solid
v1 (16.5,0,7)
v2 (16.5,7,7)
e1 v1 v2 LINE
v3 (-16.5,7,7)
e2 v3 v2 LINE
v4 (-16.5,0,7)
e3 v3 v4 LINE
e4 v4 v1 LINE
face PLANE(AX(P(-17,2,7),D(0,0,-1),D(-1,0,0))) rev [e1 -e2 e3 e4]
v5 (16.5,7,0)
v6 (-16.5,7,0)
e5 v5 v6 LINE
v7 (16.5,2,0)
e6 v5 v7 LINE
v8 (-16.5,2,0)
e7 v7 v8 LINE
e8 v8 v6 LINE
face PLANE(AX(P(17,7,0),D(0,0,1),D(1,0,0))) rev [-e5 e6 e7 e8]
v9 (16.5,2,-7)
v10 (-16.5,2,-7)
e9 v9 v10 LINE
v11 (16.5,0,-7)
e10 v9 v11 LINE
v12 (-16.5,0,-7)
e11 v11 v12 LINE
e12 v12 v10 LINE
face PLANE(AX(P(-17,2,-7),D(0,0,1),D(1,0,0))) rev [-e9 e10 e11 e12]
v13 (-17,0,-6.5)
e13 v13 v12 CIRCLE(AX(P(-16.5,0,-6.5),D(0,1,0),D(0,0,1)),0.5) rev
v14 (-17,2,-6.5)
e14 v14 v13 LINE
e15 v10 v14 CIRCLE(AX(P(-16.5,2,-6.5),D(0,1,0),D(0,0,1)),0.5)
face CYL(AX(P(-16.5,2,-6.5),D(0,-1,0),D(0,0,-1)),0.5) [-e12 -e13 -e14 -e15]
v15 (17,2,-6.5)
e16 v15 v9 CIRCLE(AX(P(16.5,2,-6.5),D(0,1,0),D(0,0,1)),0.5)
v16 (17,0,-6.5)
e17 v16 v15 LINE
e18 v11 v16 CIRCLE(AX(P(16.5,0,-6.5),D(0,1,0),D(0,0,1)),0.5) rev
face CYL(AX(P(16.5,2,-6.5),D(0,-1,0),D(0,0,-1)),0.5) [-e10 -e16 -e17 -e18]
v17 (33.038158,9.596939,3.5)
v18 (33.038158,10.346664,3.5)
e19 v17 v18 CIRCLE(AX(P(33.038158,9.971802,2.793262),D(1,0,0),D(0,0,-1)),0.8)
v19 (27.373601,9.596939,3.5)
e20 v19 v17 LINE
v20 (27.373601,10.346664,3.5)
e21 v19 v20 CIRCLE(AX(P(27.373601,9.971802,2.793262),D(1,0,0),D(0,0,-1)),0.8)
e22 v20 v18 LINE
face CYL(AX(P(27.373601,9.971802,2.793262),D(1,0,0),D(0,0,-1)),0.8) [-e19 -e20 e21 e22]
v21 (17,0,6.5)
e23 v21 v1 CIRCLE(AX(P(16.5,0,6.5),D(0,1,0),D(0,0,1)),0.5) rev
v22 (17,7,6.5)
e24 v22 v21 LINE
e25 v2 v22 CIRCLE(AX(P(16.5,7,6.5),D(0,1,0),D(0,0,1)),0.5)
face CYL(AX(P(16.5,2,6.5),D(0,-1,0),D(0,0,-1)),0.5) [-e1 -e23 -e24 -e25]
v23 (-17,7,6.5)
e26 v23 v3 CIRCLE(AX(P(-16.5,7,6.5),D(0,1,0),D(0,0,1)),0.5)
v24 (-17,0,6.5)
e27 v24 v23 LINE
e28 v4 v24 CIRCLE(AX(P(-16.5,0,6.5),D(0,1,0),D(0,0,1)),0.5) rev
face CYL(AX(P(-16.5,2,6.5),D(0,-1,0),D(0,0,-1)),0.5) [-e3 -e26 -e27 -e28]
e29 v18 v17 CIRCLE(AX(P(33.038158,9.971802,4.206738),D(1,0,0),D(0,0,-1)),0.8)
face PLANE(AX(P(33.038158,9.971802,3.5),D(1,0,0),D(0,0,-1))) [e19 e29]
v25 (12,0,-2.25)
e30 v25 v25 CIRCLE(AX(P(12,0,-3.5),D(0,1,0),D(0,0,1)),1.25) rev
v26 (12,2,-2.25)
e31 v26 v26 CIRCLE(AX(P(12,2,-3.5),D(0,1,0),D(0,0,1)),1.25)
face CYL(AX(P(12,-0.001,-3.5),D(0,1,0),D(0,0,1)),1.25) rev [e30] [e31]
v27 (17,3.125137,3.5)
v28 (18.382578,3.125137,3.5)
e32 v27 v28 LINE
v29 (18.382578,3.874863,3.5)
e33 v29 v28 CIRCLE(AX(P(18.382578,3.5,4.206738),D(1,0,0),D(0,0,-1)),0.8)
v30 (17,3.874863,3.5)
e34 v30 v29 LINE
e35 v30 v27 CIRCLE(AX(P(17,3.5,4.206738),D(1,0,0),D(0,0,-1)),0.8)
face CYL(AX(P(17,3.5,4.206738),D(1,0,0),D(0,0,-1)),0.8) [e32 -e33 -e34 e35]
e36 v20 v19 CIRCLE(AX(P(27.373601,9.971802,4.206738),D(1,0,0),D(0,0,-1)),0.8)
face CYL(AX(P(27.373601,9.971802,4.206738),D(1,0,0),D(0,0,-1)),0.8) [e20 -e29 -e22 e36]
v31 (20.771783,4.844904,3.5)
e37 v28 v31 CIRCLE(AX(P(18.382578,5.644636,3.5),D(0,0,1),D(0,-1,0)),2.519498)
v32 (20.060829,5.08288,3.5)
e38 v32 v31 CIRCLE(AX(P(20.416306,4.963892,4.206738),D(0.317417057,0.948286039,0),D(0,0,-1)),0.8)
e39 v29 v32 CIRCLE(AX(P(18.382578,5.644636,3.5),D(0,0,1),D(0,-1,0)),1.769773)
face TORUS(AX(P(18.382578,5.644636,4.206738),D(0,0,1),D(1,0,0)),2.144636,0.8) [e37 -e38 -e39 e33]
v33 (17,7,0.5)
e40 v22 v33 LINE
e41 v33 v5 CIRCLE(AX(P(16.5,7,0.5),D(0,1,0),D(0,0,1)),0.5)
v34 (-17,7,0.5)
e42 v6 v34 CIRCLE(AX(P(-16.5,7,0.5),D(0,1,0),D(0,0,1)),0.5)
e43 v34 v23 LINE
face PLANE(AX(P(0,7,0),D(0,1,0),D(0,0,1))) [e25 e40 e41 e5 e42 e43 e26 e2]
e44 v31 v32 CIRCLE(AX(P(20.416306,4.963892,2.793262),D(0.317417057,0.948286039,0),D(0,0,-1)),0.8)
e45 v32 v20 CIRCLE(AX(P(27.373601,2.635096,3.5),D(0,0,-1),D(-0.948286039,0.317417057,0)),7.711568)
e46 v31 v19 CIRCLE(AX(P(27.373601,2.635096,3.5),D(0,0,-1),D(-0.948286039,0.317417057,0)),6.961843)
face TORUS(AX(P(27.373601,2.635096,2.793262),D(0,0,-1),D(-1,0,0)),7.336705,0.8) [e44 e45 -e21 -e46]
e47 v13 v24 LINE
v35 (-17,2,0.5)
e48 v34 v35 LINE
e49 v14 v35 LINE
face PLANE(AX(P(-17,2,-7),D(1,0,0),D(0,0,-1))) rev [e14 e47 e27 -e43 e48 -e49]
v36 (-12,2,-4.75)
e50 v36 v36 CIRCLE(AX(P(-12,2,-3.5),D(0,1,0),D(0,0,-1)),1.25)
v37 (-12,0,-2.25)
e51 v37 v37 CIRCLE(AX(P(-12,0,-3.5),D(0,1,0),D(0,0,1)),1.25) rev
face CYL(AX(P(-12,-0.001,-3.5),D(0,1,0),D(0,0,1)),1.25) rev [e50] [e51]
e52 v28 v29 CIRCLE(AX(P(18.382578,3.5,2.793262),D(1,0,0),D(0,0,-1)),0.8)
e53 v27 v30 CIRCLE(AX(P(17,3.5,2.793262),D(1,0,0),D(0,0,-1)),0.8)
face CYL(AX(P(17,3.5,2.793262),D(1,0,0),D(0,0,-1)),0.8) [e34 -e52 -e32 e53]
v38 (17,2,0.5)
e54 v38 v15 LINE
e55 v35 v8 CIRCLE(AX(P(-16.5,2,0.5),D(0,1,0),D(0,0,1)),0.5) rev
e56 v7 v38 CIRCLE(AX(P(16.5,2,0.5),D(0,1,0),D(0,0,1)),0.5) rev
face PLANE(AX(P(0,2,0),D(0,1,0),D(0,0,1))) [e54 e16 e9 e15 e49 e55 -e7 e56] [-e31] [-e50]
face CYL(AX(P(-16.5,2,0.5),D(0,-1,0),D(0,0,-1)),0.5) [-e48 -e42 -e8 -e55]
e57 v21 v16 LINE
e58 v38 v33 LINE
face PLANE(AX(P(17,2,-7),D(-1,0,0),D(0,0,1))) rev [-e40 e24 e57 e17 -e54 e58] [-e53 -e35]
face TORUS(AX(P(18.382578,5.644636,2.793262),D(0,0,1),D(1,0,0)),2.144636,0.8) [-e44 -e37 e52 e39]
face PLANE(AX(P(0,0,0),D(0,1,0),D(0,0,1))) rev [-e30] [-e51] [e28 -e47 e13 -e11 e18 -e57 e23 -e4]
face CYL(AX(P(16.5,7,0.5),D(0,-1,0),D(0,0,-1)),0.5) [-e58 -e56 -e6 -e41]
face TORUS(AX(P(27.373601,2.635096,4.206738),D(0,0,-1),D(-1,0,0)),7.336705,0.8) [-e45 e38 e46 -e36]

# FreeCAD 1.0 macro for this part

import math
import FreeCAD as App
import Part
import Sketcher
from FreeCAD import Vector


def edges_at(feature, points):
    """Names of the edges that pass closest to the given points."""
    edges = feature.Shape.Edges
    near = lambda p: min(range(len(edges)), key=lambda i: edges[i].distToShape(Part.Vertex(*p))[0])
    return sorted({f"Edge{near(p) + 1}" for p in points})


def add_polygon(sketch, points):
    """Adds a closed chain of lines whose ends are joined by coincident constraints."""
    first, n = sketch.GeometryCount, len(points)
    for a, b in zip(points, points[1:] + points[:1]):
        sketch.addGeometry(Part.LineSegment(App.Vector(*a, 0), App.Vector(*b, 0)), False)
    for i in range(n):
        sketch.addConstraint(Sketcher.Constraint("Coincident", first + i, 2, first + (i + 1) % n, 1))

doc = App.newDocument("Part")
body = doc.addObject("PartDesign::Body", "Body")

# Sketch on XZ plane
sketch1 = doc.addObject("Sketcher::SketchObject", "Sketch")
body.addObject(sketch1)
sketch1.AttachmentSupport = (doc.XZ_Plane, [""])
sketch1.MapMode = "FlatFace"
add_polygon(sketch1, [(-17, -7), (-17, 7), (17, 7), (17, -7)])  # lines 0-3
sketch1.addConstraint([
    Sketcher.Constraint("Vertical", 0),
    Sketcher.Constraint("Horizontal", 1),
    Sketcher.Constraint("Vertical", 2),
    Sketcher.Constraint("Horizontal", 3),
    Sketcher.Constraint("Symmetric", 0, 2, 2, 2, -1, 1),
    Sketcher.Constraint("DistanceX", 1, 1, 1, 2, 34.0),
    Sketcher.Constraint("DistanceY", 0, 1, 0, 2, 14.0),
])
pad1 = doc.addObject("PartDesign::Pad", "Pad")
body.addObject(pad1)
pad1.Profile = sketch1
pad1.Length = 2
pad1.Reversed = True

# Sketch on XZ plane
sketch2 = doc.addObject("Sketcher::SketchObject", "Sketch001")
body.addObject(sketch2)
sketch2.AttachmentSupport = (doc.XZ_Plane, [""])
sketch2.MapMode = "FlatFace"
sketch2.AttachmentOffset = App.Placement(Vector(0, 0, -2), App.Rotation())
add_polygon(sketch2, [(-17, 0), (-17, 7), (17, 7), (17, 0)])  # lines 0-3
sketch2.addConstraint([
    Sketcher.Constraint("Vertical", 0),
    Sketcher.Constraint("Horizontal", 1),
    Sketcher.Constraint("Vertical", 2),
    Sketcher.Constraint("Horizontal", 3),
    Sketcher.Constraint("Symmetric", 2, 2, 3, 2, -1, 1),
    Sketcher.Constraint("DistanceX", 1, 1, 1, 2, 34.0),
    Sketcher.Constraint("DistanceY", 0, 1, 0, 2, 7.0),
])
pad2 = doc.addObject("PartDesign::Pad", "Pad001")
body.addObject(pad2)
pad2.Profile = sketch2
pad2.Length = 5
pad2.Reversed = True
doc.recompute()

fillet = doc.addObject("PartDesign::Fillet", "Fillet")
body.addObject(fillet)
fillet.Base = (pad2, edges_at(pad2, [
    (17, 4.5, 0),
    (-17, 4.5, 0),
    (17, 3.5, 7),
    (-17, 3.5, 7),
    (-17, 1, -7),
    (17, 1, -7),
]))
fillet.Radius = 0.5

# Sketch on XZ plane
sketch3 = doc.addObject("Sketcher::SketchObject", "Sketch002")
body.addObject(sketch3)
sketch3.AttachmentSupport = (doc.XZ_Plane, [""])
sketch3.MapMode = "FlatFace"
sketch3.AttachmentOffset = App.Placement(Vector(0, 0, -2), App.Rotation())
sketch3.addGeometry(Part.Circle(Vector(12, -3.5, 0), Vector(0, 0, 1), 1.25), False)
sketch3.addConstraint([
    Sketcher.Constraint("Diameter", 0, 2.5),
    Sketcher.Constraint("DistanceX", -1, 1, 0, 3, 12.0),
    Sketcher.Constraint("DistanceY", 0, 3, -1, 1, 3.5),
])
pocket1 = doc.addObject("PartDesign::Pocket", "Pocket")
body.addObject(pocket1)
pocket1.Profile = sketch3
pocket1.Type = "UpToFirst"
pocket1.Reversed = True

# Sketch on XZ plane
sketch4 = doc.addObject("Sketcher::SketchObject", "Sketch003")
body.addObject(sketch4)
sketch4.AttachmentSupport = (doc.XZ_Plane, [""])
sketch4.MapMode = "FlatFace"
sketch4.AttachmentOffset = App.Placement(Vector(0, 0, -2), App.Rotation())
sketch4.addGeometry(Part.Circle(Vector(-12, -3.5, 0), Vector(0, 0, 1), 1.25), False)
sketch4.addConstraint([
    Sketcher.Constraint("Diameter", 0, 2.5),
    Sketcher.Constraint("DistanceX", 0, 3, -1, 1, 12.0),
    Sketcher.Constraint("DistanceY", 0, 3, -1, 1, 3.5),
])
pocket2 = doc.addObject("PartDesign::Pocket", "Pocket001")
body.addObject(pocket2)
pocket2.Profile = sketch4
pocket2.Type = "UpToFirst"
pocket2.Reversed = True

# Sketch on YZ plane
sketch5 = doc.addObject("Sketcher::SketchObject", "Sketch004")
body.addObject(sketch5)
sketch5.AttachmentSupport = (doc.YZ_Plane, [""])
sketch5.MapMode = "FlatFace"
sketch5.AttachmentOffset = App.Placement(Vector(0, 0, 17), App.Rotation())
sketch5.addGeometry([
    Part.ArcOfCircle(Part.Circle(Vector(3.5, 4.206738, 0), Vector(0, 0, 1), 0.8), math.radians(-62.057951), math.radians(242.057951)),
    Part.ArcOfCircle(Part.Circle(Vector(3.5, 2.793262, 0), Vector(0, 0, 1), 0.8), math.radians(117.942049), math.radians(422.057951)),
], False)
sketch5.addConstraint([
    Sketcher.Constraint("Coincident", 0, 1, 1, 2),
    Sketcher.Constraint("Coincident", 1, 1, 0, 2),
    Sketcher.Constraint("Equal", 0, 1),
    Sketcher.Constraint("Horizontal", 0, 1, 1, 1),
    Sketcher.Constraint("Radius", 0, 0.8),
    Sketcher.Constraint("DistanceX", -1, 1, 0, 3, 3.5),
    Sketcher.Constraint("DistanceY", -1, 1, 0, 1, 3.5),
    Sketcher.Constraint("DistanceY", -1, 1, 0, 3, 4.206738),
])

# Sketch on XY plane
sketch6 = doc.addObject("Sketcher::SketchObject", "Sketch005")
body.addObject(sketch6)
sketch6.AttachmentSupport = (doc.XY_Plane, [""])
sketch6.MapMode = "FlatFace"
sketch6.AttachmentOffset = App.Placement(Vector(0, 0, 3.5), App.Rotation())
sketch6.addGeometry([
    Part.LineSegment(Vector(17, 3.5, 0), Vector(18.382578, 3.5, 0)),
    Part.ArcOfCircle(Part.Circle(Vector(18.382578, 5.644636, 0), Vector(0, 0, 1), 2.144636), math.radians(-90), math.radians(-18.506791)),
    Part.ArcOfCircle(Part.Circle(Vector(27.373601, 2.635096, 0), Vector(0, 0, 1), 7.336705), math.radians(90), math.radians(161.493209)),
    Part.LineSegment(Vector(27.373601, 9.971802, 0), Vector(33.038158, 9.971802, 0)),
], False)
sketch6.addConstraint([
    Sketcher.Constraint("Tangent", 0, 2, 1, 1),
    Sketcher.Constraint("Tangent", 1, 2, 2, 2),
    Sketcher.Constraint("Tangent", 2, 1, 3, 1),
    Sketcher.Constraint("Horizontal", 0),
    Sketcher.Constraint("Horizontal", 3),
    Sketcher.Constraint("DistanceX", -1, 1, 0, 1, 17.0),
    Sketcher.Constraint("DistanceY", -1, 1, 0, 1, 3.5),
    Sketcher.Constraint("Radius", 1, 2.144636),
    Sketcher.Constraint("Radius", 2, 7.336705),
    Sketcher.Constraint("DistanceX", 0, 1, 0, 2, 1.382578),
    Sketcher.Constraint("DistanceX", -1, 1, 2, 3, 27.373601),
    Sketcher.Constraint("DistanceX", 3, 1, 3, 2, 5.664556),
])
doc.recompute()

additivepipe = doc.addObject("PartDesign::AdditivePipe", "AdditivePipe")
body.addObject(additivepipe)
additivepipe.Profile = sketch5
additivepipe.Spine = (sketch6, ["Edge1", "Edge2", "Edge3", "Edge4"])

doc.recompute()
